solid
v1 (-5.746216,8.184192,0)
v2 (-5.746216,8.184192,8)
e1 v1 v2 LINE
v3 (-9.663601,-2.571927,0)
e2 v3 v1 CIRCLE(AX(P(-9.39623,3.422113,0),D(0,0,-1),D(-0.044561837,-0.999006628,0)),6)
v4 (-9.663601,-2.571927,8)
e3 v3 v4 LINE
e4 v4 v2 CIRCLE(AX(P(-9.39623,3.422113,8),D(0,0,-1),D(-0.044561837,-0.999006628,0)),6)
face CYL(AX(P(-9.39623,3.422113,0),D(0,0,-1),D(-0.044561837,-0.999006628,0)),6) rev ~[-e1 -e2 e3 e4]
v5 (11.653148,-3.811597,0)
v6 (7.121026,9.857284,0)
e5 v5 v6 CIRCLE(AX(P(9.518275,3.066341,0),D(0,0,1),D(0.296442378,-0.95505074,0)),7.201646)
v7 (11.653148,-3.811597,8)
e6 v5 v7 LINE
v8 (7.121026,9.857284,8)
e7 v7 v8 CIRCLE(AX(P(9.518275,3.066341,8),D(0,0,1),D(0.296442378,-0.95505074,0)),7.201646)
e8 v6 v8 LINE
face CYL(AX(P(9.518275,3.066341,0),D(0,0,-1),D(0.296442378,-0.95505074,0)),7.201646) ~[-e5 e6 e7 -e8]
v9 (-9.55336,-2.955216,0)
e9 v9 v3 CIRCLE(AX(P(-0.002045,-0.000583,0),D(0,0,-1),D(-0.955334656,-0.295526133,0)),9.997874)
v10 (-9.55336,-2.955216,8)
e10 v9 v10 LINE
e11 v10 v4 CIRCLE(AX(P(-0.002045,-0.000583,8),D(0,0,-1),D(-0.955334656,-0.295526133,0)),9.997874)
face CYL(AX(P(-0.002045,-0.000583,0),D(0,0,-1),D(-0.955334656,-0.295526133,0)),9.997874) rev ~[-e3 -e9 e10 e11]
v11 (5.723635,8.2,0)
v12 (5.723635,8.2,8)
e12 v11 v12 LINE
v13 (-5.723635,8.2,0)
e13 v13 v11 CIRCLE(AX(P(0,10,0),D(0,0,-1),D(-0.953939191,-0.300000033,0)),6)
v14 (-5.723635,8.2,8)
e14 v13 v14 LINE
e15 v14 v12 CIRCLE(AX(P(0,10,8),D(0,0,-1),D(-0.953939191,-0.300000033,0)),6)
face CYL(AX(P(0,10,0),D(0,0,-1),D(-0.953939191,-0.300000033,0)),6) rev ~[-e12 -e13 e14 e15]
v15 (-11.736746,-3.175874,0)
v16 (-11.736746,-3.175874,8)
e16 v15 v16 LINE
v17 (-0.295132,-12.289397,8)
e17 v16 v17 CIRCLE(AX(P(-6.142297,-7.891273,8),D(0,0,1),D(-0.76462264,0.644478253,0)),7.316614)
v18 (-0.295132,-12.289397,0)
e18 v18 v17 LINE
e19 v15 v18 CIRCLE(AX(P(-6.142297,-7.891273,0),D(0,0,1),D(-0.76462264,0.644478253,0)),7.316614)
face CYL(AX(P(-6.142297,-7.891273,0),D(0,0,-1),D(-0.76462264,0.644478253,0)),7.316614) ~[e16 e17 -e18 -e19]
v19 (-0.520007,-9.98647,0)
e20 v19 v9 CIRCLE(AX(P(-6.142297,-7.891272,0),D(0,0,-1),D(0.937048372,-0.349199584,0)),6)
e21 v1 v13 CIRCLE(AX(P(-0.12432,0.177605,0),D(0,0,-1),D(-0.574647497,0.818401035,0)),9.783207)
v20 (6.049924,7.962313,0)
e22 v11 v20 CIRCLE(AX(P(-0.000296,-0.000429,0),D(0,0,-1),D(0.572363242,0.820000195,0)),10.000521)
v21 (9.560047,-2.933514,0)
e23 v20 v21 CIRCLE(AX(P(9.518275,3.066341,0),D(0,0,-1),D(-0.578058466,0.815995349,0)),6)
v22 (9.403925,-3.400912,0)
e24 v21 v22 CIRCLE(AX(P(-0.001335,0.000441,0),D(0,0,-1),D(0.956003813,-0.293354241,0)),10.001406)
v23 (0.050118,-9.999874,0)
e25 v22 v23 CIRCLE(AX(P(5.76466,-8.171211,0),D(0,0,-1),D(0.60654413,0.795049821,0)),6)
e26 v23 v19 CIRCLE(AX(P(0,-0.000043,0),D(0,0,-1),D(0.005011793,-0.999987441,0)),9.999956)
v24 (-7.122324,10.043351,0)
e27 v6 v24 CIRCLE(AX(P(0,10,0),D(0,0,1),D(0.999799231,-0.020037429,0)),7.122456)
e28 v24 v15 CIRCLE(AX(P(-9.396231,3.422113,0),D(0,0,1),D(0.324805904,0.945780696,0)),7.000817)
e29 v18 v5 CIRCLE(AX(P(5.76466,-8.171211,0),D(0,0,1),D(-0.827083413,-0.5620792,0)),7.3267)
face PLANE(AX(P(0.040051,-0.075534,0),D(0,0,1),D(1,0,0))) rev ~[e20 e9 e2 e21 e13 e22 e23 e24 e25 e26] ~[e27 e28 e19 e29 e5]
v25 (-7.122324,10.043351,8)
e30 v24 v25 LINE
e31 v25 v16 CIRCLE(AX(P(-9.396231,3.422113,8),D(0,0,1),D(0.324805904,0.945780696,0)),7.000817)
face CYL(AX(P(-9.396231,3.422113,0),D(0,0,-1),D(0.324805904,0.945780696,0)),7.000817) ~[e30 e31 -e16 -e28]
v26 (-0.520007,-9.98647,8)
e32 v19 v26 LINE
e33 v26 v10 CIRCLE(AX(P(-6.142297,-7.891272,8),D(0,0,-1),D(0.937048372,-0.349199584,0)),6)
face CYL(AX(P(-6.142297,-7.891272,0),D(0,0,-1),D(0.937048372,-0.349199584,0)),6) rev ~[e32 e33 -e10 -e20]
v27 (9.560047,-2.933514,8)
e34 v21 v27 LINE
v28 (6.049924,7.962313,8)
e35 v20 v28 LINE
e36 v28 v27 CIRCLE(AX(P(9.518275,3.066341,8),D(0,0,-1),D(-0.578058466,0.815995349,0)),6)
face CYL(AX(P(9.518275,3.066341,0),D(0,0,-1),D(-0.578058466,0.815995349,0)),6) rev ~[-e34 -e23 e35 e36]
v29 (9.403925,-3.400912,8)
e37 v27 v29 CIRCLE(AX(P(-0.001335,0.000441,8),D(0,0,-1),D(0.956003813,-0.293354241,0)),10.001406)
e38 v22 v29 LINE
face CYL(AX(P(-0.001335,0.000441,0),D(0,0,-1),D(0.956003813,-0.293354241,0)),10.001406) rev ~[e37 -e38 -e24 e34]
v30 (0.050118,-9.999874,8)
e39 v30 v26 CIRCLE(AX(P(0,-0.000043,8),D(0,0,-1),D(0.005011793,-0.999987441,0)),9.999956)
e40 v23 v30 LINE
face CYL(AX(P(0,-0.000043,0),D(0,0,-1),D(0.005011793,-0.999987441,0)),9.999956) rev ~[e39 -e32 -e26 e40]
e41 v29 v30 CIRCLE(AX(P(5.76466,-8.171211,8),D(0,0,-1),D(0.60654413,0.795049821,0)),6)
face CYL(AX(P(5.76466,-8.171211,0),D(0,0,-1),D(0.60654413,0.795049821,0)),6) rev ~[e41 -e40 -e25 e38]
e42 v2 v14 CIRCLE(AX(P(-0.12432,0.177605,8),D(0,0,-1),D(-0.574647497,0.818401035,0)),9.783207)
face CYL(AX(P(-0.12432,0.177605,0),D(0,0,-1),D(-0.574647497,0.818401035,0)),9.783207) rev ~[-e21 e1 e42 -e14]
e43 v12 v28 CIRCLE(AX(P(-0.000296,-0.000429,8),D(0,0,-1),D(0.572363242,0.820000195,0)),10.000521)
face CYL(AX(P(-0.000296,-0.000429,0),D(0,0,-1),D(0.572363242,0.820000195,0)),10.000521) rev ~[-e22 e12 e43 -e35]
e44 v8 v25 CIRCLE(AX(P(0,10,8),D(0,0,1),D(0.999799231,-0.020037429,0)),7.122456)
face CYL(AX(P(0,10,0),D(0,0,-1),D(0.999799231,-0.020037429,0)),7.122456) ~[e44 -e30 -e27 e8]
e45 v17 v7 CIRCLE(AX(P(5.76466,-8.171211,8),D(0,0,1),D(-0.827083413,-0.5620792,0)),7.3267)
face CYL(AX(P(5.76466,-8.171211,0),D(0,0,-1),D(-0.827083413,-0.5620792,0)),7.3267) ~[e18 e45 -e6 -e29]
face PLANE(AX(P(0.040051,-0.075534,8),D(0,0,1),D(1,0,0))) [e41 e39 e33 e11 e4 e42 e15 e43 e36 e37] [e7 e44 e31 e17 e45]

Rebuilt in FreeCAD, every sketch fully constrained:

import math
import FreeCAD as App
import Part
import Sketcher
Q = App.Units.Quantity

doc = App.newDocument("Part")
body = doc.addObject("PartDesign::Body", "Body")

sketch1 = doc.addObject("Sketcher::SketchObject", "Sketch")
body.addObject(sketch1)
sketch1.AttachmentSupport = (doc.XY_Plane, [""])
sketch1.MapMode = "FlatFace"
sketch1.addGeometry(Part.ArcOfCircle(Part.Circle(App.Vector(-9.396231, 3.422113, 0), App.Vector(0, 0, 1), 7.000817), math.radians(71.046184), math.radians(250.468791)), False)
sketch1.addGeometry(Part.ArcOfCircle(Part.Circle(App.Vector(-6.142297, -7.891273, 0), App.Vector(0, 0, 1), 7.316614), math.radians(139.873432), math.radians(323.050224)), False)
sketch1.addGeometry(Part.ArcOfCircle(Part.Circle(App.Vector(5.76466, -8.171211, 0), App.Vector(0, 0, 1), 7.3267), math.radians(-145.800289), math.radians(36.514851)), False)
sketch1.addGeometry(Part.ArcOfCircle(Part.Circle(App.Vector(9.518275, 3.066341, 0), App.Vector(0, 0, 1), 7.201646), math.radians(-72.755951), math.radians(109.443376)), False)
sketch1.addGeometry(Part.ArcOfCircle(Part.Circle(App.Vector(0, 10, 0), App.Vector(0, 0, 1), 7.122456), math.radians(-1.148137), math.radians(179.651263)), False)
sketch1.addGeometry(Part.ArcOfCircle(Part.Circle(App.Vector(-6.142297, -7.891272, 0), App.Vector(0, 0, 1), 6), math.radians(124.646419), math.radians(339.561634)), False)
sketch1.addGeometry(Part.ArcOfCircle(Part.Circle(App.Vector(-0.002045, -0.000583, 0), App.Vector(0, 0, 1), 9.997874), math.radians(-165.096663), math.radians(-162.810911)), False)
sketch1.addGeometry(Part.ArcOfCircle(Part.Circle(App.Vector(-9.39623, 3.422113, 0), App.Vector(0, 0, 1), 6), math.radians(52.530743), math.radians(267.445949)), False)
sketch1.addGeometry(Part.ArcOfCircle(Part.Circle(App.Vector(-0.12432, 0.177605, 0), App.Vector(0, 0, 1), 9.783207), math.radians(124.913518), math.radians(125.07495)), False)
sketch1.addGeometry(Part.ArcOfCircle(Part.Circle(App.Vector(0, 10, 0), App.Vector(0, 0, 1), 6), math.radians(-17.457605), math.radians(197.457605)), False)
sketch1.addGeometry(Part.ArcOfCircle(Part.Circle(App.Vector(-0.000296, -0.000429, 0), App.Vector(0, 0, 1), 10.000521), math.radians(52.771846), math.radians(55.084813)), False)
sketch1.addGeometry(Part.ArcOfCircle(Part.Circle(App.Vector(9.518275, 3.066341, 0), App.Vector(0, 0, 1), 6), math.radians(-89.601103), math.radians(125.314101)), False)
sketch1.addGeometry(Part.ArcOfCircle(Part.Circle(App.Vector(-0.001335, 0.000441, 0), App.Vector(0, 0, 1), 10.001406), math.radians(-19.882203), math.radians(-17.058877)), False)
sketch1.addGeometry(Part.ArcOfCircle(Part.Circle(App.Vector(5.76466, -8.171211, 0), App.Vector(0, 0, 1), 6), math.radians(-162.255242), math.radians(52.659962)), False)
sketch1.addGeometry(Part.ArcOfCircle(Part.Circle(App.Vector(0, -0.000043, 0), App.Vector(0, 0, 1), 9.999956), math.radians(-92.98078), math.radians(-89.712844)), False)
sketch1.addConstraint(Sketcher.Constraint("Coincident", 0, 2, 1, 1))
sketch1.addConstraint(Sketcher.Constraint("Coincident", 1, 2, 2, 1))
sketch1.addConstraint(Sketcher.Constraint("Coincident", 2, 2, 3, 1))
sketch1.addConstraint(Sketcher.Constraint("Coincident", 3, 2, 4, 1))
sketch1.addConstraint(Sketcher.Constraint("Coincident", 4, 2, 0, 1))
sketch1.addConstraint(Sketcher.Constraint("Coincident", 5, 1, 6, 2))
sketch1.addConstraint(Sketcher.Constraint("Coincident", 6, 1, 7, 2))
sketch1.addConstraint(Sketcher.Constraint("Coincident", 7, 1, 8, 2))
sketch1.addConstraint(Sketcher.Constraint("Coincident", 8, 1, 9, 2))
sketch1.addConstraint(Sketcher.Constraint("Coincident", 9, 1, 10, 2))
sketch1.addConstraint(Sketcher.Constraint("Coincident", 10, 1, 11, 2))
sketch1.addConstraint(Sketcher.Constraint("Coincident", 11, 1, 12, 2))
sketch1.addConstraint(Sketcher.Constraint("Coincident", 12, 1, 13, 2))
sketch1.addConstraint(Sketcher.Constraint("Coincident", 13, 1, 14, 2))
sketch1.addConstraint(Sketcher.Constraint("Coincident", 14, 1, 5, 2))
sketch1.addConstraint(Sketcher.Constraint("Coincident", 5, 3, 1, 3))
sketch1.addConstraint(Sketcher.Constraint("Coincident", 7, 3, 0, 3))
sketch1.addConstraint(Sketcher.Constraint("Coincident", 9, 3, 4, 3))
sketch1.addConstraint(Sketcher.Constraint("Coincident", 11, 3, 3, 3))
sketch1.addConstraint(Sketcher.Constraint("Coincident", 13, 3, 2, 3))
sketch1.addConstraint(Sketcher.Constraint("Equal", 5, 7))
sketch1.addConstraint(Sketcher.Constraint("Equal", 7, 9))
sketch1.addConstraint(Sketcher.Constraint("Equal", 9, 11))
sketch1.addConstraint(Sketcher.Constraint("Equal", 11, 13))
sketch1.addConstraint(Sketcher.Constraint("Symmetric", 8, 1, 9, 1, -2))
sketch1.addConstraint(Sketcher.Constraint("PointOnObject", 14, 3, -2))
sketch1.addConstraint(Sketcher.Constraint("Radius", 5, Q("6 mm")))
sketch1.addConstraint(Sketcher.Constraint("DistanceY", -1, 1, 4, 3, Q("10 mm")))
sketch1.addConstraint(Sketcher.Constraint("DistanceY", -1, 1, 8, 1, Q("8.2 mm")))
sketch1.addConstraint(Sketcher.Constraint("Radius", 2, Q("7.3267 mm")))
sketch1.addConstraint(Sketcher.Constraint("Radius", 10, Q("10.000521 mm")))
sketch1.addConstraint(Sketcher.Constraint("Radius", 0, Q("7.000817 mm")))
sketch1.addConstraint(Sketcher.Constraint("Radius", 1, Q("7.316614 mm")))
sketch1.addConstraint(Sketcher.Constraint("Radius", 3, Q("7.201646 mm")))
sketch1.addConstraint(Sketcher.Constraint("Radius", 4, Q("7.122456 mm")))
sketch1.addConstraint(Sketcher.Constraint("Radius", 6, Q("9.997874 mm")))
sketch1.addConstraint(Sketcher.Constraint("Radius", 8, Q("9.783207 mm")))
sketch1.addConstraint(Sketcher.Constraint("Radius", 12, Q("10.001406 mm")))
sketch1.addConstraint(Sketcher.Constraint("Radius", 14, Q("9.999956 mm")))
sketch1.addConstraint(Sketcher.Constraint("DistanceX", 5, 3, 10, 3, Q("6.142002 mm")))
sketch1.addConstraint(Sketcher.Constraint("DistanceX", 6, 1, -1, 1, Q("9.663601 mm")))
sketch1.addConstraint(Sketcher.Constraint("DistanceY", 5, 3, 0, 2, Q("4.715398 mm")))
sketch1.addConstraint(Sketcher.Constraint("DistanceX", 11, 1, 2, 2, Q("2.093101 mm")))
sketch1.addConstraint(Sketcher.Constraint("DistanceY", 13, 3, 12, 1, Q("4.770299 mm")))
sketch1.addConstraint(Sketcher.Constraint("DistanceY", 13, 1, 1, 3, Q("2.108601 mm")))
sketch1.addConstraint(Sketcher.Constraint("DistanceX", 0, 3, -1, 1, Q("9.396231 mm")))
sketch1.addConstraint(Sketcher.Constraint("DistanceX", -1, 1, 2, 3, Q("5.76466 mm")))
sketch1.addConstraint(Sketcher.Constraint("DistanceY", 2, 3, -1, 1, Q("8.171211 mm")))
sketch1.addConstraint(Sketcher.Constraint("DistanceY", -1, 1, 3, 3, Q("3.066341 mm")))
sketch1.addConstraint(Sketcher.Constraint("DistanceX", 8, 3, -1, 1, Q("0.12432 mm")))
sketch1.addConstraint(Sketcher.Constraint("DistanceY", 10, 3, -1, 1, Q("0.000429 mm")))
sketch1.addConstraint(Sketcher.Constraint("DistanceY", -1, 1, 12, 3, Q("0.000441 mm")))
sketch1.addConstraint(Sketcher.Constraint("DistanceX", 1, 2, -1, 1, Q("0.295132 mm")))
sketch1.addConstraint(Sketcher.Constraint("DistanceX", 5, 1, -1, 1, Q("9.55336 mm")))
pad1 = doc.addObject("PartDesign::Pad", "Pad")
body.addObject(pad1)
pad1.Profile = sketch1
pad1.Length = 8

doc.recompute()
